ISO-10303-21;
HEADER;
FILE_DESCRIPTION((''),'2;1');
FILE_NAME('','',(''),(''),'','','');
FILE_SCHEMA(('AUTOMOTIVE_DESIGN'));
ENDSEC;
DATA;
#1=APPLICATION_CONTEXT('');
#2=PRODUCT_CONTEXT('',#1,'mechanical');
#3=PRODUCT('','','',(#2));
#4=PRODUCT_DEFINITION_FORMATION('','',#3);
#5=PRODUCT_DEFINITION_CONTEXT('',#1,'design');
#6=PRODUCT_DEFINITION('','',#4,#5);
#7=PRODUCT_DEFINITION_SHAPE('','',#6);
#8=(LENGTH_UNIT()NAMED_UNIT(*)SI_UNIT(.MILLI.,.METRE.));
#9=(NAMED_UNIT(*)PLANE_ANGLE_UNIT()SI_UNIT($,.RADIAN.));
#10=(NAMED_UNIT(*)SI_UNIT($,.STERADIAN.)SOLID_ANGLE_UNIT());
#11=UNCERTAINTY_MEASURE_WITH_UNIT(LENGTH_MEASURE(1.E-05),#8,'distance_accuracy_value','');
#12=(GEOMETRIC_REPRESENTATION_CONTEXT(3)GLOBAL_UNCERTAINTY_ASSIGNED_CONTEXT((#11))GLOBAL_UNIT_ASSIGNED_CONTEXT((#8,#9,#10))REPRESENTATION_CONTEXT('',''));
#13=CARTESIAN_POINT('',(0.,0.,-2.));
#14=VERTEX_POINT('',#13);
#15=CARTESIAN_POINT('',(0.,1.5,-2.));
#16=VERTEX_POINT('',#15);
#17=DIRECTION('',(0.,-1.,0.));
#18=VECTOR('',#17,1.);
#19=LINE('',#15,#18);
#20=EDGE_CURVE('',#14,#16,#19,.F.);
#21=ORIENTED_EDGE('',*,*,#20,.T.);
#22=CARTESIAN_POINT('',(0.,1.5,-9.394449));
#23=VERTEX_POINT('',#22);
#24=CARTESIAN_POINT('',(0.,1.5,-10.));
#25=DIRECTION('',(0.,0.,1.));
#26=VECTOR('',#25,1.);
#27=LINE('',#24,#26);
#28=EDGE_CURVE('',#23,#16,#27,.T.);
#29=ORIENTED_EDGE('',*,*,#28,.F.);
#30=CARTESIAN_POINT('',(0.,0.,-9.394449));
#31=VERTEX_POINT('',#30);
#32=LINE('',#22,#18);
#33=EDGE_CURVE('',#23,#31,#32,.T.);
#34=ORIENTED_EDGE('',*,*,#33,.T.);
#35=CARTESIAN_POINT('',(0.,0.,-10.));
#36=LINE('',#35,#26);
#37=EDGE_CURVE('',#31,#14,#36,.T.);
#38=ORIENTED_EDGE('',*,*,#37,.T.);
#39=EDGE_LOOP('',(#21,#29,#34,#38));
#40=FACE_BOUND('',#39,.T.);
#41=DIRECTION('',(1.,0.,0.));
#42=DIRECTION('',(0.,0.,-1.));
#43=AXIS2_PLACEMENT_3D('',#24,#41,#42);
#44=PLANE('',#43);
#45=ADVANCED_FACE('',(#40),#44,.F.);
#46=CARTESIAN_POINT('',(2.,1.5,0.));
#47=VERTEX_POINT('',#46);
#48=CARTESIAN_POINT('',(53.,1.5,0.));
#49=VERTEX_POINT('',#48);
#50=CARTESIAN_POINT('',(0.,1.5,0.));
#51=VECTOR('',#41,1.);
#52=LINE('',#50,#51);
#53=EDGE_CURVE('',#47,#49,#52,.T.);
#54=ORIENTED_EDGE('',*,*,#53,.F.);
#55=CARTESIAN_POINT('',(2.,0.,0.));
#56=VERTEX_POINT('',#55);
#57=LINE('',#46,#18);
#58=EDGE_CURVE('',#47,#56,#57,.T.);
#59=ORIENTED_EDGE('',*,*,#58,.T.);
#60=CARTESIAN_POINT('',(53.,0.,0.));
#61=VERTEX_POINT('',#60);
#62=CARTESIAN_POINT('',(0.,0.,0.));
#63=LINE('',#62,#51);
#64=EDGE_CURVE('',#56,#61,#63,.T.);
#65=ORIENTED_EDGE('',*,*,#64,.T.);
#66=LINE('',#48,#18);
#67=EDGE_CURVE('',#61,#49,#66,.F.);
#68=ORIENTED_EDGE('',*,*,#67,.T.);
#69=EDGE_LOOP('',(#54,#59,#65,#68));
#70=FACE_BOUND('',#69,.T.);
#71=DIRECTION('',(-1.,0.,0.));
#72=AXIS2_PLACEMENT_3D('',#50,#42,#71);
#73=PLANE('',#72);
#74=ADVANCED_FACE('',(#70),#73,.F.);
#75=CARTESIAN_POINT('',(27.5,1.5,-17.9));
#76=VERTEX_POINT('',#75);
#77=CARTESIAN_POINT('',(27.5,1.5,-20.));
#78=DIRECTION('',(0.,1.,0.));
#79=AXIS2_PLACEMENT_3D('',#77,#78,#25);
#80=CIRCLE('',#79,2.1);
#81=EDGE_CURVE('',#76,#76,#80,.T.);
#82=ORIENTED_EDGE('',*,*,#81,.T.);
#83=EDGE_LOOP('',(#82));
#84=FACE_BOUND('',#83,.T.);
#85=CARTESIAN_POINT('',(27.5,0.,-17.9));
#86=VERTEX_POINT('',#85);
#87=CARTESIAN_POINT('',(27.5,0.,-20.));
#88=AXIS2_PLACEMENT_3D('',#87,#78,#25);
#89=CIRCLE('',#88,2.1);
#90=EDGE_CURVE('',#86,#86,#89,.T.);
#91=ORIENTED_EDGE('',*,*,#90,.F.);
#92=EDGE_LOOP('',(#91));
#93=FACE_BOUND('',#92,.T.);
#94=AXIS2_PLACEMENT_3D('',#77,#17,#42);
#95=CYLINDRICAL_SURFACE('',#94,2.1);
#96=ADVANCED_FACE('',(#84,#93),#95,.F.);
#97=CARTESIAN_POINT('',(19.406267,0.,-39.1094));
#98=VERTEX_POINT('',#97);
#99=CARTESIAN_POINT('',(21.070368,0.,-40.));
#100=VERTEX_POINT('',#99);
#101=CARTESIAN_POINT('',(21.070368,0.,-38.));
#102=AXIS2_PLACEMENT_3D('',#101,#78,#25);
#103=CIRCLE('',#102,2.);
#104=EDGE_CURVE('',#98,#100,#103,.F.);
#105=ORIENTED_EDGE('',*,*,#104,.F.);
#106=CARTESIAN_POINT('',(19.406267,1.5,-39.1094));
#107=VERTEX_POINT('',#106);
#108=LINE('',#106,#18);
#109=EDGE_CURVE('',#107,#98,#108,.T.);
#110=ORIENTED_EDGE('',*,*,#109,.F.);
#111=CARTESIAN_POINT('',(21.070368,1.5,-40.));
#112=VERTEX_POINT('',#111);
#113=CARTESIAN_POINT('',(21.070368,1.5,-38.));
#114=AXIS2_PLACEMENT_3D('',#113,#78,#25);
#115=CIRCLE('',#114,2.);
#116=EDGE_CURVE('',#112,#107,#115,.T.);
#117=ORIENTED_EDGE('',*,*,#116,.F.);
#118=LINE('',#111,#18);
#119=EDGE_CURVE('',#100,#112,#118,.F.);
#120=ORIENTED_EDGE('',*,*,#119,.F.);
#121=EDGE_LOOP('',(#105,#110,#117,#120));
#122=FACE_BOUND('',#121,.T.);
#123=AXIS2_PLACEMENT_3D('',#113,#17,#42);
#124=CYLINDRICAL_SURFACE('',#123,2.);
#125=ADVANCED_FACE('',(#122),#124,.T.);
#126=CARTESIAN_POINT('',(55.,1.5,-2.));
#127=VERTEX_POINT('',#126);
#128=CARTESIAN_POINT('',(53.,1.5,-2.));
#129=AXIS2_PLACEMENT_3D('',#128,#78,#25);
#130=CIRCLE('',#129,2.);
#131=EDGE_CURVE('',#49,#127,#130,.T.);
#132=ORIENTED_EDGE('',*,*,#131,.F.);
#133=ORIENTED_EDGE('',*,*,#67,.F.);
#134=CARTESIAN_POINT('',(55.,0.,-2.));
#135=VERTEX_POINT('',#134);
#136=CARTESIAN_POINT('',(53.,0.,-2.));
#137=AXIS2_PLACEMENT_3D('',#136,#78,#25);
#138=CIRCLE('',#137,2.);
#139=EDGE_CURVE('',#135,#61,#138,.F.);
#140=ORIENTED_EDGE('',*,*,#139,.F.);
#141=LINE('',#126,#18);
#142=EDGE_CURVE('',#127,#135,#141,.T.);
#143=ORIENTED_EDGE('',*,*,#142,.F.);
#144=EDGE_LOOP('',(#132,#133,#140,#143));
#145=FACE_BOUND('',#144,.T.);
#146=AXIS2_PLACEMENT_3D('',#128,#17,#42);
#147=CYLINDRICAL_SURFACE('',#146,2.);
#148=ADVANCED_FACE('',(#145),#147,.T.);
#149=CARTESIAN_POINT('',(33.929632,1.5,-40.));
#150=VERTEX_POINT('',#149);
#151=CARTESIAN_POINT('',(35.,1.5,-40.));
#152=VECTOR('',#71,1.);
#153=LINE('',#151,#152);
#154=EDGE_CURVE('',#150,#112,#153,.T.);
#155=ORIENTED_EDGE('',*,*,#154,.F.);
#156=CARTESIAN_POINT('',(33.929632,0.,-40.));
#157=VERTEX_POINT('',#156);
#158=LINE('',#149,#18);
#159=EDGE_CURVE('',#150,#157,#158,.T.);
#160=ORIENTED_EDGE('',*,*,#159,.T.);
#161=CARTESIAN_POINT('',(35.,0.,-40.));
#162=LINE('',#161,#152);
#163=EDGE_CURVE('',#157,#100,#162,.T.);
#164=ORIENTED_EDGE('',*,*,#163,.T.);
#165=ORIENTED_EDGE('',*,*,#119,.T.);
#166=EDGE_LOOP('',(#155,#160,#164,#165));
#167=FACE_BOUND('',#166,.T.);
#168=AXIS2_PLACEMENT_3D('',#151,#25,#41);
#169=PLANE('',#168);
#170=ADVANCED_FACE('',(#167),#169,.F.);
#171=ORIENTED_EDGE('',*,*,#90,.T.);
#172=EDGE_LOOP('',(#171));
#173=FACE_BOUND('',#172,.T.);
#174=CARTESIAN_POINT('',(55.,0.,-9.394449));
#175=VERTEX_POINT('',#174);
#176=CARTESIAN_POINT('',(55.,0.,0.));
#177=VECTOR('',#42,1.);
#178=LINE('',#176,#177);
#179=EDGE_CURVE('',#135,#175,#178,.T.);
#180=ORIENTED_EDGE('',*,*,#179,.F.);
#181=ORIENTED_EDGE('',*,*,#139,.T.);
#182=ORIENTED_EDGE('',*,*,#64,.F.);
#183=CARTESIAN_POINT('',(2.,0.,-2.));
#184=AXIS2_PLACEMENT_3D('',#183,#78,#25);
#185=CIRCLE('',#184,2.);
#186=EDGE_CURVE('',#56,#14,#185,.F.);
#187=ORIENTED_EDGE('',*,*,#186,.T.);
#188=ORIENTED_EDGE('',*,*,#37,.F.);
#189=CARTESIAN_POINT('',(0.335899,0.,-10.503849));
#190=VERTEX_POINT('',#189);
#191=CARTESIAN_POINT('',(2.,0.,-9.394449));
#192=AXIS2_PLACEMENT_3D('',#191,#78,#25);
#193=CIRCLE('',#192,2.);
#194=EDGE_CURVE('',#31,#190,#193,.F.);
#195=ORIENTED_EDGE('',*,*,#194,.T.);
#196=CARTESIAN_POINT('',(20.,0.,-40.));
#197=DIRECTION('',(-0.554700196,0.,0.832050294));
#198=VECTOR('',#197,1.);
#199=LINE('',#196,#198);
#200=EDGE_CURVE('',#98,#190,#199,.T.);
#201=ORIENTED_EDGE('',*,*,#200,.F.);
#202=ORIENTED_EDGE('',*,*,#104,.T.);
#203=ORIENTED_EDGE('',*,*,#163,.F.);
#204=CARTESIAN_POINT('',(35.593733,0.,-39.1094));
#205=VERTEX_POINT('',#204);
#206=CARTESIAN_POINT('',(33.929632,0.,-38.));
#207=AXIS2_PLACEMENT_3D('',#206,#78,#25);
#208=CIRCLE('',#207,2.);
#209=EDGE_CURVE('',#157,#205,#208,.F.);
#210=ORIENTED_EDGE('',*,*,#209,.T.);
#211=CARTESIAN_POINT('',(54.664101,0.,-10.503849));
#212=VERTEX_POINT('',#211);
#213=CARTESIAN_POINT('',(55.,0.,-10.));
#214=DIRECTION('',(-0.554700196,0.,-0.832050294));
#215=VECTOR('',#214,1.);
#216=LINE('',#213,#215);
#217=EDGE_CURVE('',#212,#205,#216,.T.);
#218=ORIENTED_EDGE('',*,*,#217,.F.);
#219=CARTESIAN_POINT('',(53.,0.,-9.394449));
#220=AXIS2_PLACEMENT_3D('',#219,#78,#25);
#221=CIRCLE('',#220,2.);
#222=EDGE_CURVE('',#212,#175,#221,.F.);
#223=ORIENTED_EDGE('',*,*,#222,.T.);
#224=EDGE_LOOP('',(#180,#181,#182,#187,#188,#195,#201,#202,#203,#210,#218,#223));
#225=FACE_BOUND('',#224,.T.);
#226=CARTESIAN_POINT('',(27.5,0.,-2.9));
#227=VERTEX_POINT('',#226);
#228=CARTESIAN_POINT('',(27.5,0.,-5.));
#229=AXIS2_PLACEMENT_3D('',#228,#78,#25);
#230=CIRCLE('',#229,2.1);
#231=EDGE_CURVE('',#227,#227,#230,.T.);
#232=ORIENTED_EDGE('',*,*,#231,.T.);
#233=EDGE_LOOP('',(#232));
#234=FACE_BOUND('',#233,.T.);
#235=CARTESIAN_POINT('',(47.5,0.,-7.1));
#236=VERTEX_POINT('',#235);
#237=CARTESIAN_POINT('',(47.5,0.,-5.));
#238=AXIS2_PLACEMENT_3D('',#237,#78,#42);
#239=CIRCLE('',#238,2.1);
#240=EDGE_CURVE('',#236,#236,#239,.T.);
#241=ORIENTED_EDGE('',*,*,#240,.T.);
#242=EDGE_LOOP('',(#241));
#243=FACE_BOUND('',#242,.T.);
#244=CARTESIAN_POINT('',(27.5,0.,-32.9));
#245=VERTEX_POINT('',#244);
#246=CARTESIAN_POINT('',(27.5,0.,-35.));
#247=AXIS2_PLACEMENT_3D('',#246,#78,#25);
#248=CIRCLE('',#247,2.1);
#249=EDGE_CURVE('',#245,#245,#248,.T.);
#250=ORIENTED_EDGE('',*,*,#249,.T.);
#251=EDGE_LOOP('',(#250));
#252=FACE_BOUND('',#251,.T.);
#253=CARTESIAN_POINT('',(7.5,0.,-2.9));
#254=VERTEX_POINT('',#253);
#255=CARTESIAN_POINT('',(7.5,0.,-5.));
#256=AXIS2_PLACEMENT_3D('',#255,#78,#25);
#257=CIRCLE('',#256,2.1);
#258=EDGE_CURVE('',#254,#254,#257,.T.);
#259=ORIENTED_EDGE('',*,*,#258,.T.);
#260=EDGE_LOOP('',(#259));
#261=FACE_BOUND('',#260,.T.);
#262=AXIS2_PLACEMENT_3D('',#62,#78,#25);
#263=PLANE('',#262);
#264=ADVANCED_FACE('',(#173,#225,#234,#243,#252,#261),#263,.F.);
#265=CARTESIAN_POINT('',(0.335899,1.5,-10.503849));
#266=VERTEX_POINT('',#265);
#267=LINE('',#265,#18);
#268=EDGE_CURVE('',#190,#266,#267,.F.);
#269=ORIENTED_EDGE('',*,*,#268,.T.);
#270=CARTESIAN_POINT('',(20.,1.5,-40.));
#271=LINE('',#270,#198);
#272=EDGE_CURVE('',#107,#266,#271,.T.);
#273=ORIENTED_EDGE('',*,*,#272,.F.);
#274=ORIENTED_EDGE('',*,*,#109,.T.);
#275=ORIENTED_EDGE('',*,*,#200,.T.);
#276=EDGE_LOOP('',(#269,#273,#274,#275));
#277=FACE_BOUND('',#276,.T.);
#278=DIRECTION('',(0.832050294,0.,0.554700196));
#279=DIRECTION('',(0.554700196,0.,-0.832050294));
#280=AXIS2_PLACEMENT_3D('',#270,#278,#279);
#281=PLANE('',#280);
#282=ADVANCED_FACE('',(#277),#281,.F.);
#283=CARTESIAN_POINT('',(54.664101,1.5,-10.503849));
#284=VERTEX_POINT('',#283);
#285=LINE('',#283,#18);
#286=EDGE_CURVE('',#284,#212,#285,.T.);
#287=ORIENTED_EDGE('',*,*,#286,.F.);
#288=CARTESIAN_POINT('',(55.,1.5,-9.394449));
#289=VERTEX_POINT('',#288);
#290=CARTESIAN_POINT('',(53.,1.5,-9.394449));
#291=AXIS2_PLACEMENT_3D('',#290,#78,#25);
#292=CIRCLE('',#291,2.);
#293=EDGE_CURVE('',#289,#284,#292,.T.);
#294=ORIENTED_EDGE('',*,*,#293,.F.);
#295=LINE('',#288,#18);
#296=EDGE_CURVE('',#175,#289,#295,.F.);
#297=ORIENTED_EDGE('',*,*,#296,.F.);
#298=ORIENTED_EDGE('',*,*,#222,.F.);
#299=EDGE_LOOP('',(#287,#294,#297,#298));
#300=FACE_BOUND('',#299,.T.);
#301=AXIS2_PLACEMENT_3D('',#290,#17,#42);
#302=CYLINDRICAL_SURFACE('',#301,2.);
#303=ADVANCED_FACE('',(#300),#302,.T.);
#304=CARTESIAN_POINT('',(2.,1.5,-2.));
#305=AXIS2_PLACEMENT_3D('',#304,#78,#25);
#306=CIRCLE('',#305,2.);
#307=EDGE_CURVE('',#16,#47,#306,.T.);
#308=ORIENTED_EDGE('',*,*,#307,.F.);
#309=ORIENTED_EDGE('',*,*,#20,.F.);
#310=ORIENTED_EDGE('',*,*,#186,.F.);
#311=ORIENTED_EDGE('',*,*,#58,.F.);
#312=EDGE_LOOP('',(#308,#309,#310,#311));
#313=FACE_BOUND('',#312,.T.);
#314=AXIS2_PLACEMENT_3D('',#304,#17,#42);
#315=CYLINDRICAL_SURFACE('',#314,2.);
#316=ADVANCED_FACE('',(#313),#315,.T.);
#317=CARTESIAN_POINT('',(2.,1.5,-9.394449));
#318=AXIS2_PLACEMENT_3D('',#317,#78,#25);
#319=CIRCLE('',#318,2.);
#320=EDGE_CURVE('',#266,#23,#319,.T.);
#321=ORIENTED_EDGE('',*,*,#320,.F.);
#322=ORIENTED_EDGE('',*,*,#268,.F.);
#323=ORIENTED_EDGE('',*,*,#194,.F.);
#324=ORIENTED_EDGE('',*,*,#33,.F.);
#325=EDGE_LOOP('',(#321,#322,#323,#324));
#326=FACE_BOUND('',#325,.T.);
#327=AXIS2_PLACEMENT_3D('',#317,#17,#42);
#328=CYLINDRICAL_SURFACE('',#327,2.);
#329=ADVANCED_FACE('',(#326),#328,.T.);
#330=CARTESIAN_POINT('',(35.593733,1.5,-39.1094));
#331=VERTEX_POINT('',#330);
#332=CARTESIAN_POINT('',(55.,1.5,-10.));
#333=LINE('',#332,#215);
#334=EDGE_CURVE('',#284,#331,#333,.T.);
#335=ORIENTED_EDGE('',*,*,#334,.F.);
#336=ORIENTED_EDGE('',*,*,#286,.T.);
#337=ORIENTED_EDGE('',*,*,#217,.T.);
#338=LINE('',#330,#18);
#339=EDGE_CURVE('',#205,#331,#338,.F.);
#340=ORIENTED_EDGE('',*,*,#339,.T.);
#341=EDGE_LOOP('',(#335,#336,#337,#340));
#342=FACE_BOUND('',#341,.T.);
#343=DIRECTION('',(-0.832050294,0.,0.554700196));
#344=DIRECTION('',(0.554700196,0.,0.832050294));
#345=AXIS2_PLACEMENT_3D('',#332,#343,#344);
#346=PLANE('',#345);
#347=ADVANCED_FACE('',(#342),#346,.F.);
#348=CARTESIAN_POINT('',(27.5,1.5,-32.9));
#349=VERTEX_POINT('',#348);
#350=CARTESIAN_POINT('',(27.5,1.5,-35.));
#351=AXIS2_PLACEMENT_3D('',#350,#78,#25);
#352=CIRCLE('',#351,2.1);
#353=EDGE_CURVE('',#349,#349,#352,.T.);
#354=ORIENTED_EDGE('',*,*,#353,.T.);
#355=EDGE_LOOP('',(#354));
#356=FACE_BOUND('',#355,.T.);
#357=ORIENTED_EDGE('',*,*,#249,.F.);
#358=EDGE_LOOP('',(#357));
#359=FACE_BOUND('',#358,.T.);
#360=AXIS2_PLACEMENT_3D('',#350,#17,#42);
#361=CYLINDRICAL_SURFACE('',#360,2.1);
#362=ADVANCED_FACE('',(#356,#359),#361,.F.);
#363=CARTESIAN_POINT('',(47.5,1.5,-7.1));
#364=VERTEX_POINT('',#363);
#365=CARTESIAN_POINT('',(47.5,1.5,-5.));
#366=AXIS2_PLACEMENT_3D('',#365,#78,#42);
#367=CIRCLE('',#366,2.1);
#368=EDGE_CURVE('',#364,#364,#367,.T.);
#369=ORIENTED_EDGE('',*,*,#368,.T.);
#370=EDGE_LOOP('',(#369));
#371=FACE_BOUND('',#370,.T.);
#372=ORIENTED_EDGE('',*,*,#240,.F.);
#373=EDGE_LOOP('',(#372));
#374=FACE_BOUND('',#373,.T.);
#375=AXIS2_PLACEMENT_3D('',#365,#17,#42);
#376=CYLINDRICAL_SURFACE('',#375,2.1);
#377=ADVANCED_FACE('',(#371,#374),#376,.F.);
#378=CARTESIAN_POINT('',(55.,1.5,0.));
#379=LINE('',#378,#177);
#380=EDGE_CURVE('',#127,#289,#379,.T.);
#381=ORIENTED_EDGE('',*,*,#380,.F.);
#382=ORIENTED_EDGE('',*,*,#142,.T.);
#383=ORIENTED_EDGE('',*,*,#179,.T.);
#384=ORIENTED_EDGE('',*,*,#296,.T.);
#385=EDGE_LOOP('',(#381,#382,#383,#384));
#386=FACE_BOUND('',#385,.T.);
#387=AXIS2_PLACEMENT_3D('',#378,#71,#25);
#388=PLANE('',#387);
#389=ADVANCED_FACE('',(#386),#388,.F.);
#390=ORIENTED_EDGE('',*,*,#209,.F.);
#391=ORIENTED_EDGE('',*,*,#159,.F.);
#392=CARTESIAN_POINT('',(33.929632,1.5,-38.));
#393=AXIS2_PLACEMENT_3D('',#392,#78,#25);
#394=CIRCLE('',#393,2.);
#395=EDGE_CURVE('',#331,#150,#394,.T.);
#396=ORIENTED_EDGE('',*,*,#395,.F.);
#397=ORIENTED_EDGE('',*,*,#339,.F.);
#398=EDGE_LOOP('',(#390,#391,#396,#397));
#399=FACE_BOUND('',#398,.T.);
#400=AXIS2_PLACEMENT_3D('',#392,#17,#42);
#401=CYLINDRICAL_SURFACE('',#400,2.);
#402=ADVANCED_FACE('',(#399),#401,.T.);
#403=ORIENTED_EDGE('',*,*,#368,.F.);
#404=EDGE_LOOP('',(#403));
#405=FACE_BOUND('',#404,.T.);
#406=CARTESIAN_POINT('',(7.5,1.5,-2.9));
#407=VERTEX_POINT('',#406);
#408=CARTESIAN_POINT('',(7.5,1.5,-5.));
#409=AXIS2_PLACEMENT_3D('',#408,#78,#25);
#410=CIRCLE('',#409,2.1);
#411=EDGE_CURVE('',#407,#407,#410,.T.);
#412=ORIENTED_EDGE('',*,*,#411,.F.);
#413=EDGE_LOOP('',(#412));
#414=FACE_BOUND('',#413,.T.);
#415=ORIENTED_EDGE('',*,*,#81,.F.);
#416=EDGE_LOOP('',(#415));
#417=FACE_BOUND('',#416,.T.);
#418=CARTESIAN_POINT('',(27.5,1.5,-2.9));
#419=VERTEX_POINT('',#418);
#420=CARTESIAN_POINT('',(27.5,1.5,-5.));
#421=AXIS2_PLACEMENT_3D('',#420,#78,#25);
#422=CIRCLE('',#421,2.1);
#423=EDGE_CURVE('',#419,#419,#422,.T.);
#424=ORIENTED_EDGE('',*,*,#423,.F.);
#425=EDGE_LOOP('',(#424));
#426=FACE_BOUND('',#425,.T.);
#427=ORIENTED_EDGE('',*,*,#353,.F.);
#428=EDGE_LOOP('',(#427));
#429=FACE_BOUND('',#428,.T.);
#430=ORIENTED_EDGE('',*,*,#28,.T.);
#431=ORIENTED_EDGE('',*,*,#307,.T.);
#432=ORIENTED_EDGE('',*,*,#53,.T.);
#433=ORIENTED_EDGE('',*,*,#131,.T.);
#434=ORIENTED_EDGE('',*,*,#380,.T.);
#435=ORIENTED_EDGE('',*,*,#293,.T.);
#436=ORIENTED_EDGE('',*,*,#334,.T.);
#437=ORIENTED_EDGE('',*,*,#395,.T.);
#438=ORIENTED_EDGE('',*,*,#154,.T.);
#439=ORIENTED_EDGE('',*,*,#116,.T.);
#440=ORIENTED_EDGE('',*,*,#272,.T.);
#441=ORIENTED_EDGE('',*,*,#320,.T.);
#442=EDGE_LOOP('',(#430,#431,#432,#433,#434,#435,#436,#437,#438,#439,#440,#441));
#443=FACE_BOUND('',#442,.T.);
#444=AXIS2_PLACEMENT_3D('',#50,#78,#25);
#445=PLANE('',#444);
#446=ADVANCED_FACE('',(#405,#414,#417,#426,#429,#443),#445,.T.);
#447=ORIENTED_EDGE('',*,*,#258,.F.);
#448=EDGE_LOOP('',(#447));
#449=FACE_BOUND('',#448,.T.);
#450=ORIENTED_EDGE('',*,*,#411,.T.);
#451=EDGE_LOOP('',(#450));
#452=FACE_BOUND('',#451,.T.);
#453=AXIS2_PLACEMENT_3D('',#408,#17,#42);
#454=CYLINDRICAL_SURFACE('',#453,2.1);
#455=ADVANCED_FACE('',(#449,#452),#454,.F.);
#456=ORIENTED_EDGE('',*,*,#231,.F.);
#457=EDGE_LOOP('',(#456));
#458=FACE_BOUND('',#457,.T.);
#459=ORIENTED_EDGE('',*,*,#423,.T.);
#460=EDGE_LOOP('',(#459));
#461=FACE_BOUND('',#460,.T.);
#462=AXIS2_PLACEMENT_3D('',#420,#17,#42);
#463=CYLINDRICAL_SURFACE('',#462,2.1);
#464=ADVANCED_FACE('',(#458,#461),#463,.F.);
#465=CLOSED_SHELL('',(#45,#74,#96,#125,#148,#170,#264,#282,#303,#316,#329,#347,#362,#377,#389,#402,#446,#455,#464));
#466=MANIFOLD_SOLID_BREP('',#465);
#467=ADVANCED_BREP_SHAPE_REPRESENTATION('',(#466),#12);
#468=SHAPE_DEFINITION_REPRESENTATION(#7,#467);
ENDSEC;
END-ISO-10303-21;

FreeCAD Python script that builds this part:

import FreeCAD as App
import Part
import Sketcher


def edges_at(feature, points):
    """Names of the edges that pass closest to the given points."""
    edges = feature.Shape.Edges
    near = lambda p: min(range(len(edges)), key=lambda i: edges[i].distToShape(Part.Vertex(*p))[0])
    return sorted({f"Edge{near(p) + 1}" for p in points})


def add_polygon(sketch, points):
    """Adds a closed chain of lines whose ends are joined by coincident constraints."""
    first, n = sketch.GeometryCount, len(points)
    for a, b in zip(points, points[1:] + points[:1]):
        sketch.addGeometry(Part.LineSegment(App.Vector(*a, 0), App.Vector(*b, 0)), False)
    for i in range(n):
        sketch.addConstraint(Sketcher.Constraint("Coincident", first + i, 2, first + (i + 1) % n, 1))

doc = App.newDocument("Part")
body = doc.addObject("PartDesign::Body", "Body")

# Sketch on XZ plane
sketch1 = body.newObject("Sketcher::SketchObject", "Sketch")
sketch1.AttachmentSupport = (doc.getObject("XZ_Plane"), [""])
sketch1.MapMode = "FlatFace"
add_polygon(sketch1, [(0, 0), (55, 0), (55, -10), (35, -40), (20, -40), (0, -10)])  # lines 0-5
sketch1.addGeometry(Part.Circle(App.Vector(7.5, -5, 0), App.Vector(0, 0, 1), 2.1), False)  # 6
sketch1.addGeometry(Part.Circle(App.Vector(27.5, -5, 0), App.Vector(0, 0, 1), 2.1), False)  # 7
sketch1.addGeometry(Part.Circle(App.Vector(47.5, -5, 0), App.Vector(0, 0, 1), 2.1), False)  # 8
sketch1.addGeometry(Part.Circle(App.Vector(27.5, -20, 0), App.Vector(0, 0, 1), 2.1), False)  # 9
sketch1.addGeometry(Part.Circle(App.Vector(27.5, -35, 0), App.Vector(0, 0, 1), 2.1), False)  # 10
sketch1.addConstraint([
    Sketcher.Constraint("Horizontal", 0),
    Sketcher.Constraint("Vertical", 1),
    Sketcher.Constraint("Horizontal", 3),
    Sketcher.Constraint("Vertical", 5),
    Sketcher.Constraint("Coincident", 5, 2, -1, 1),
    Sketcher.Constraint("Equal", 6, 7),
    Sketcher.Constraint("Equal", 7, 8),
    Sketcher.Constraint("Equal", 8, 9),
    Sketcher.Constraint("Equal", 9, 10),
    Sketcher.Constraint("Horizontal", 6, 3, 7, 3),
    Sketcher.Constraint("Horizontal", 7, 3, 8, 3),
    Sketcher.Constraint("Horizontal", 1, 2, 4, 2),
    Sketcher.Constraint("Vertical", 7, 3, 9, 3),
    Sketcher.Constraint("Vertical", 9, 3, 10, 3),
    Sketcher.Constraint("Equal", 2, 4),
    Sketcher.Constraint("Diameter", 6, 4.2),
    Sketcher.Constraint("DistanceX", 0, 1, 0, 2, 55.0),
    Sketcher.Constraint("DistanceX", 3, 2, 3, 1, 15.0),
    Sketcher.Constraint("DistanceY", 1, 2, 1, 1, 10.0),
    Sketcher.Constraint("DistanceY", 6, 3, -1, 1, 5.0),
    Sketcher.Constraint("DistanceY", 9, 3, -1, 1, 20.0),
    Sketcher.Constraint("DistanceY", 10, 3, -1, 1, 35.0),
    Sketcher.Constraint("DistanceY", 2, 2, -1, 1, 40.0),
    Sketcher.Constraint("DistanceX", 6, 3, 7, 3, 20.0),
    Sketcher.Constraint("DistanceX", 7, 3, 8, 3, 20.0),
    Sketcher.Constraint("DistanceX", -1, 1, 6, 3, 7.5),
])
pad1 = body.newObject("PartDesign::Pad", "Pad")
pad1.Profile = sketch1
pad1.Length = 1.5
pad1.Reversed = True
doc.recompute()

fillet = body.newObject("PartDesign::Fillet", "Fillet")
fillet.Base = (pad1, edges_at(pad1, [
    (0, 0.75, -10),
    (20, 0.75, -40),
    (35, 0.75, -40),
    (55, 0.75, -10),
    (55, 0.75, 0),
    (0, 0.75, 0),
]))
fillet.Radius = 2

doc.recompute()
